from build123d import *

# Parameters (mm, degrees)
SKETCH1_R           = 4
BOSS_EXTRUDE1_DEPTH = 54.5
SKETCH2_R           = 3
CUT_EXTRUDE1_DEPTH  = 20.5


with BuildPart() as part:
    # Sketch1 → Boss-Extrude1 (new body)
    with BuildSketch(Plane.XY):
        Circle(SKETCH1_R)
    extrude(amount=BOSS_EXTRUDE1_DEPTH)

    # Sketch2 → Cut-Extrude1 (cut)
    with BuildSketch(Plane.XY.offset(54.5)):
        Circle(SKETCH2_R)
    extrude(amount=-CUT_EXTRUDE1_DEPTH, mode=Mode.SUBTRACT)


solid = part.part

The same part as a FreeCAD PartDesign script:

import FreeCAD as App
import Part
import Sketcher
from FreeCAD import Vector
Q = App.Units.Quantity

doc = App.newDocument("Part")
body = doc.addObject("PartDesign::Body", "Body")

# Sketch on XY plane
sketch1 = doc.addObject("Sketcher::SketchObject", "Sketch")
body.addObject(sketch1)
sketch1.AttachmentSupport = (doc.XY_Plane, [""])
sketch1.MapMode = "FlatFace"
sketch1.addGeometry(Part.Circle(Vector(0, 0, 0), Vector(0, 0, 1), 4), False)
sketch1.addConstraint([
    Sketcher.Constraint("Coincident", 0, 3, -1, 1),
    Sketcher.Constraint("Diameter", 0, Q("8 mm")),
])
pad1 = doc.addObject("PartDesign::Pad", "Pad")
body.addObject(pad1)
pad1.Profile = sketch1
pad1.Length = 54.5

# Sketch on XY plane
sketch2 = doc.addObject("Sketcher::SketchObject", "Sketch001")
body.addObject(sketch2)
sketch2.AttachmentSupport = (doc.XY_Plane, [""])
sketch2.MapMode = "FlatFace"
sketch2.AttachmentOffset = App.Placement(Vector(0, 0, 54.5), App.Rotation())
sketch2.addGeometry(Part.Circle(Vector(0, 0, 0), Vector(0, 0, 1), 3), False)
sketch2.addConstraint([
    Sketcher.Constraint("Coincident", 0, 3, -1, 1),
    Sketcher.Constraint("Diameter", 0, Q("6 mm")),
])
pocket1 = doc.addObject("PartDesign::Pocket", "Pocket")
body.addObject(pocket1)
pocket1.Profile = sketch2
pocket1.Length = 20.5

doc.recompute()
